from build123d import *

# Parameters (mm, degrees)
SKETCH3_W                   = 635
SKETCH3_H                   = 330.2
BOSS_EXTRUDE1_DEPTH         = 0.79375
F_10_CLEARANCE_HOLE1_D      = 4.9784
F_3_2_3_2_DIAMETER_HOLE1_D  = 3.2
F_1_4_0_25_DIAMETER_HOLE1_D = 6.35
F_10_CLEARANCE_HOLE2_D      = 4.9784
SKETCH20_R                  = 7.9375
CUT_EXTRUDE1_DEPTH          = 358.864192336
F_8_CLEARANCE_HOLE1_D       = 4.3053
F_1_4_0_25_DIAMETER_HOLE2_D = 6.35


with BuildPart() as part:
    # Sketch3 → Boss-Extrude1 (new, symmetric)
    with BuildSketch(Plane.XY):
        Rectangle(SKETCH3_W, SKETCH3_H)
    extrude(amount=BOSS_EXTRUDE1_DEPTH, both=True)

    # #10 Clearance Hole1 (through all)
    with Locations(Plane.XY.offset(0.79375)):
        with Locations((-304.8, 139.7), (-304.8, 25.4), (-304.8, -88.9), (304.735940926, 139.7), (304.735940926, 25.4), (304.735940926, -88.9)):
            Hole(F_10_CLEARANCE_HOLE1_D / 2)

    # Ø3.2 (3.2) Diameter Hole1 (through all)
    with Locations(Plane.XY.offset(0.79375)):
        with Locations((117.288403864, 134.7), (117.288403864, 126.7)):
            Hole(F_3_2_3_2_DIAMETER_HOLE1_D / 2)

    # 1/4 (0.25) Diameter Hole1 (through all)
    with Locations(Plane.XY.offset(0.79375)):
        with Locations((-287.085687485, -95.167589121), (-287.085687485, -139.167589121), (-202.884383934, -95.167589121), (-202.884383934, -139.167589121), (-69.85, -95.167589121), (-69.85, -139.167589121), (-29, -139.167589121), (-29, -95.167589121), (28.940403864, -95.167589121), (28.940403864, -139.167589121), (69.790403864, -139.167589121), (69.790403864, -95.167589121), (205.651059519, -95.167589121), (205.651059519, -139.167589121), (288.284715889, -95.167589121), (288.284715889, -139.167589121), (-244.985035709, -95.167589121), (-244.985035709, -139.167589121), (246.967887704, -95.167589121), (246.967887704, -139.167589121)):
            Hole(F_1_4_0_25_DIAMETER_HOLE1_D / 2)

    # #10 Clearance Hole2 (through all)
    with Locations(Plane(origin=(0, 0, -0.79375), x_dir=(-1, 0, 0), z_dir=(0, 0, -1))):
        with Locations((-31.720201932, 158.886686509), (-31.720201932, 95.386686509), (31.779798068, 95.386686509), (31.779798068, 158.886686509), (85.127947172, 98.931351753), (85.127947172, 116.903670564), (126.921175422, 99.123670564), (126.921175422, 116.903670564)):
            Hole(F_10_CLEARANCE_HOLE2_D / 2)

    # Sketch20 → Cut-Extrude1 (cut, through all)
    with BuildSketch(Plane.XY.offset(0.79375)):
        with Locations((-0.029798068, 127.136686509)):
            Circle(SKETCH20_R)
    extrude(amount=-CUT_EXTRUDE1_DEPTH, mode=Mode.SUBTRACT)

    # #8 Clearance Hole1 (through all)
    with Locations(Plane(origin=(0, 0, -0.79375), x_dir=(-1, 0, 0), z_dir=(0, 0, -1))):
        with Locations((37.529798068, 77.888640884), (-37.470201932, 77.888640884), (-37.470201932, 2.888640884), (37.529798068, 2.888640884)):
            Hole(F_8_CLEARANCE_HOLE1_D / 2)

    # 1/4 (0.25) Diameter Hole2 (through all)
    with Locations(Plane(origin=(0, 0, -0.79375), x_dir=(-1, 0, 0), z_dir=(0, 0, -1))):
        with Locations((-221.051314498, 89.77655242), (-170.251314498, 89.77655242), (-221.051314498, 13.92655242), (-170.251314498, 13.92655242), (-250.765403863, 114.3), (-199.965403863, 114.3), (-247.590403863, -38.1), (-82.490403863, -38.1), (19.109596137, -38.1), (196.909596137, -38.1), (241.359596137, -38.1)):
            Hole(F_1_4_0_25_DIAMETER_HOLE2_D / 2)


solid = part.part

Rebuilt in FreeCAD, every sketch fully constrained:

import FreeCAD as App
import Part
import Sketcher

V = App.Vector
Q = App.Units.Quantity

doc = App.newDocument("Part")
body = doc.addObject("PartDesign::Body", "Body")

# Sketch on XY plane
sketch1 = doc.addObject("Sketcher::SketchObject", "Sketch")
body.addObject(sketch1)
sketch1.AttachmentSupport = (doc.XY_Plane, [""])
sketch1.MapMode = "FlatFace"
sketch1.addGeometry([
    Part.LineSegment(V(-318, 165, 0), V(-318, -165, 0)),
    Part.LineSegment(V(-318, -165, 0), V(318, -165, 0)),
    Part.LineSegment(V(318, -165, 0), V(318, 165, 0)),
    Part.LineSegment(V(318, 165, 0), V(-318, 165, 0)),
], False)
sketch1.addConstraint([
    Sketcher.Constraint("Coincident", 0, 2, 1, 1),
    Sketcher.Constraint("Coincident", 1, 2, 2, 1),
    Sketcher.Constraint("Coincident", 2, 2, 3, 1),
    Sketcher.Constraint("Coincident", 3, 2, 0, 1),
    Sketcher.Constraint("Vertical", 0),
    Sketcher.Constraint("Horizontal", 1),
    Sketcher.Constraint("Vertical", 2),
    Sketcher.Constraint("Horizontal", 3),
    Sketcher.Constraint("Symmetric", 0, 2, 2, 2, -1, 1),
    Sketcher.Constraint("DistanceX", 1, 1, 1, 2, Q("25 in")),
    Sketcher.Constraint("DistanceY", 0, 2, 0, 1, Q("13 in")),
])
pad1 = doc.addObject("PartDesign::Pad", "Pad")
body.addObject(pad1)
pad1.Profile = sketch1
pad1.Length = Q("0.0625 in")
pad1.Midplane = True

# Sketch on XY plane
sketch2 = doc.addObject("Sketcher::SketchObject", "Sketch001")
body.addObject(sketch2)
sketch2.AttachmentSupport = (doc.XY_Plane, [""])
sketch2.MapMode = "FlatFace"
sketch2.AttachmentOffset = App.Placement(V(0, 0, 0.03125 * 25.4), App.Rotation())
sketch2.addGeometry([
    Part.Circle(V(-304.8, 139.7, 0), V(0, 0, 1), 2.5),  # 0
    Part.Circle(V(-304.8, 25.4, 0), V(0, 0, 1), 2.5),  # 1
    Part.Circle(V(-304.8, -88.9, 0), V(0, 0, 1), 2.5),  # 2
    Part.Circle(V(304.7, 139.7, 0), V(0, 0, 1), 2.5),  # 3
    Part.Circle(V(304.7, 25.4, 0), V(0, 0, 1), 2.5),  # 4
    Part.Circle(V(304.7, -88.9, 0), V(0, 0, 1), 2.5),  # 5
], False)
sketch2.addConstraint([
    Sketcher.Constraint("Equal", 0, 1),
    Sketcher.Constraint("Equal", 1, 2),
    Sketcher.Constraint("Equal", 2, 3),
    Sketcher.Constraint("Equal", 3, 4),
    Sketcher.Constraint("Equal", 4, 5),
    Sketcher.Constraint("Horizontal", 0, 3, 3, 3),
    Sketcher.Constraint("Horizontal", 1, 3, 4, 3),
    Sketcher.Constraint("Horizontal", 2, 3, 5, 3),
    Sketcher.Constraint("Vertical", 0, 3, 1, 3),
    Sketcher.Constraint("Vertical", 1, 3, 2, 3),
    Sketcher.Constraint("Vertical", 3, 3, 4, 3),
    Sketcher.Constraint("Vertical", 4, 3, 5, 3),
    Sketcher.Constraint("Diameter", 0, Q("0.196 in")),
    Sketcher.Constraint("DistanceX", 0, 3, -1, 1, Q("12 in")),
    Sketcher.Constraint("DistanceY", -1, 1, 1, 3, Q("1 in")),
    Sketcher.Constraint("DistanceY", 2, 3, 0, 3, Q("9 in")),
    Sketcher.Constraint("DistanceY", -1, 1, 0, 3, Q("5.5 in")),
    Sketcher.Constraint("DistanceX", -1, 1, 3, 3, Q("304.735941 mm")),
])
doc.recompute()
hole = doc.addObject("PartDesign::Hole", "Hole")
body.addObject(hole)
hole.Profile = sketch2
hole.ThreadType = "None"
hole.Diameter = Q("0.196 in")
hole.DepthType = "ThroughAll"

# Sketch on XY plane
sketch3 = doc.addObject("Sketcher::SketchObject", "Sketch002")
body.addObject(sketch3)
sketch3.AttachmentSupport = (doc.XY_Plane, [""])
sketch3.MapMode = "FlatFace"
sketch3.AttachmentOffset = App.Placement(V(0, 0, 0.03125 * 25.4), App.Rotation())
sketch3.addGeometry([
    Part.Circle(V(117.3, 134.7, 0), V(0, 0, 1), 1.6),
    Part.Circle(V(117.3, 126.7, 0), V(0, 0, 1), 1.6),
], False)
sketch3.addConstraint([
    Sketcher.Constraint("Equal", 0, 1),
    Sketcher.Constraint("Vertical", 0, 3, 1, 3),
    Sketcher.Constraint("Diameter", 0, Q("3.2 mm")),
    Sketcher.Constraint("DistanceY", -1, 1, 0, 3, Q("134.7 mm")),
    Sketcher.Constraint("DistanceY", -1, 1, 1, 3, Q("126.7 mm")),
    Sketcher.Constraint("DistanceX", -1, 1, 0, 3, Q("117.288404 mm")),
])
doc.recompute()
hole2 = doc.addObject("PartDesign::Hole", "Hole001")
body.addObject(hole2)
hole2.Profile = sketch3
hole2.ThreadType = "None"
hole2.Diameter = 3.2
hole2.DepthType = "ThroughAll"

# Sketch on XY plane
sketch4 = doc.addObject("Sketcher::SketchObject", "Sketch003")
body.addObject(sketch4)
sketch4.AttachmentSupport = (doc.XY_Plane, [""])
sketch4.MapMode = "FlatFace"
sketch4.AttachmentOffset = App.Placement(V(0, 0, 0.03125 * 25.4), App.Rotation())
sketch4.addGeometry([
    Part.Circle(V(-287.1, -95.2, 0), V(0, 0, 1), 3.2),  # 0
    Part.Circle(V(-287.1, -139.2, 0), V(0, 0, 1), 3.2),  # 1
    Part.Circle(V(-202.9, -95.2, 0), V(0, 0, 1), 3.2),  # 2
    Part.Circle(V(-202.9, -139.2, 0), V(0, 0, 1), 3.2),  # 3
    Part.Circle(V(-69.8, -95.2, 0), V(0, 0, 1), 3.2),  # 4
    Part.Circle(V(-69.8, -139.2, 0), V(0, 0, 1), 3.2),  # 5
    Part.Circle(V(-29, -139.2, 0), V(0, 0, 1), 3.2),  # 6
    Part.Circle(V(-29, -95.2, 0), V(0, 0, 1), 3.2),  # 7
    Part.Circle(V(28.9, -95.2, 0), V(0, 0, 1), 3.2),  # 8
    Part.Circle(V(28.9, -139.2, 0), V(0, 0, 1), 3.2),  # 9
    Part.Circle(V(69.8, -139.2, 0), V(0, 0, 1), 3.2),  # 10
    Part.Circle(V(69.8, -95.2, 0), V(0, 0, 1), 3.2),  # 11
    Part.Circle(V(205.7, -95.2, 0), V(0, 0, 1), 3.2),  # 12
    Part.Circle(V(205.7, -139.2, 0), V(0, 0, 1), 3.2),  # 13
    Part.Circle(V(288.3, -95.2, 0), V(0, 0, 1), 3.2),  # 14
    Part.Circle(V(288.3, -139.2, 0), V(0, 0, 1), 3.2),  # 15
    Part.Circle(V(-245, -95.2, 0), V(0, 0, 1), 3.2),  # 16
    Part.Circle(V(-245, -139.2, 0), V(0, 0, 1), 3.2),  # 17
    Part.Circle(V(247, -95.2, 0), V(0, 0, 1), 3.2),  # 18
    Part.Circle(V(247, -139.2, 0), V(0, 0, 1), 3.2),  # 19
], False)
sketch4.addConstraint([
    Sketcher.Constraint("Equal", 0, 1),
    Sketcher.Constraint("Equal", 1, 2),
    Sketcher.Constraint("Equal", 2, 3),
    Sketcher.Constraint("Equal", 3, 4),
    Sketcher.Constraint("Equal", 4, 5),
    Sketcher.Constraint("Equal", 5, 6),
    Sketcher.Constraint("Equal", 6, 7),
    Sketcher.Constraint("Equal", 7, 8),
    Sketcher.Constraint("Equal", 8, 9),
    Sketcher.Constraint("Equal", 9, 10),
    Sketcher.Constraint("Equal", 10, 11),
    Sketcher.Constraint("Equal", 11, 12),
    Sketcher.Constraint("Equal", 12, 13),
    Sketcher.Constraint("Equal", 13, 14),
    Sketcher.Constraint("Equal", 14, 15),
    Sketcher.Constraint("Equal", 15, 16),
    Sketcher.Constraint("Equal", 16, 17),
    Sketcher.Constraint("Equal", 17, 18),
    Sketcher.Constraint("Equal", 18, 19),
    Sketcher.Constraint("Horizontal", 0, 3, 2, 3),
    Sketcher.Constraint("Horizontal", 1, 3, 3, 3),
    Sketcher.Constraint("Horizontal", 2, 3, 4, 3),
    Sketcher.Constraint("Horizontal", 3, 3, 5, 3),
    Sketcher.Constraint("Horizontal", 5, 3, 6, 3),
    Sketcher.Constraint("Horizontal", 4, 3, 7, 3),
    Sketcher.Constraint("Horizontal", 7, 3, 8, 3),
    Sketcher.Constraint("Horizontal", 6, 3, 9, 3),
    Sketcher.Constraint("Horizontal", 9, 3, 10, 3),
    Sketcher.Constraint("Horizontal", 8, 3, 11, 3),
    Sketcher.Constraint("Horizontal", 11, 3, 12, 3),
    Sketcher.Constraint("Horizontal", 10, 3, 13, 3),
    Sketcher.Constraint("Horizontal", 12, 3, 14, 3),
    Sketcher.Constraint("Horizontal", 13, 3, 15, 3),
    Sketcher.Constraint("Horizontal", 14, 3, 16, 3),
    Sketcher.Constraint("Horizontal", 15, 3, 17, 3),
    Sketcher.Constraint("Horizontal", 16, 3, 18, 3),
    Sketcher.Constraint("Horizontal", 17, 3, 19, 3),
    Sketcher.Constraint("Vertical", 0, 3, 1, 3),
    Sketcher.Constraint("Vertical", 2, 3, 3, 3),
    Sketcher.Constraint("Vertical", 4, 3, 5, 3),
    Sketcher.Constraint("Vertical", 6, 3, 7, 3),
    Sketcher.Constraint("Vertical", 8, 3, 9, 3),
    Sketcher.Constraint("Vertical", 10, 3, 11, 3),
    Sketcher.Constraint("Vertical", 12, 3, 13, 3),
    Sketcher.Constraint("Vertical", 14, 3, 15, 3),
    Sketcher.Constraint("Vertical", 16, 3, 17, 3),
    Sketcher.Constraint("Vertical", 18, 3, 19, 3),
    Sketcher.Constraint("Diameter", 0, Q("0.25 in")),
    Sketcher.Constraint("DistanceX", 4, 3, -1, 1, Q("2.75 in")),
    Sketcher.Constraint("DistanceX", 6, 3, -1, 1, Q("29 mm")),
    Sketcher.Constraint("DistanceY", 1, 3, 0, 3, Q("44 mm")),
    Sketcher.Constraint("DistanceX", 9, 3, 10, 3, Q("40.85 mm")),
    Sketcher.Constraint("DistanceY", 0, 3, -1, 1, Q("95.167589 mm")),
    Sketcher.Constraint("DistanceX", -1, 1, 12, 3, Q("205.65106 mm")),
    Sketcher.Constraint("DistanceX", 16, 3, 2, 3, Q("42.100652 mm")),
    Sketcher.Constraint("DistanceX", 0, 3, 16, 3, Q("42.100652 mm")),
    Sketcher.Constraint("DistanceX", 12, 3, 18, 3, Q("41.316828 mm")),
    Sketcher.Constraint("DistanceX", 18, 3, 14, 3, Q("41.316828 mm")),
    Sketcher.Constraint("DistanceX", 0, 3, -1, 1, Q("287.085687 mm")),
    Sketcher.Constraint("DistanceX", -1, 1, 8, 3, Q("28.940404 mm")),
])
doc.recompute()
hole3 = doc.addObject("PartDesign::Hole", "Hole002")
body.addObject(hole3)
hole3.Profile = sketch4
hole3.ThreadType = "None"
hole3.Diameter = Q("0.25 in")
hole3.DepthType = "ThroughAll"

# Sketch on XY plane
sketch5 = doc.addObject("Sketcher::SketchObject", "Sketch004")
body.addObject(sketch5)
sketch5.AttachmentSupport = (doc.XY_Plane, [""])
sketch5.MapMode = "FlatFace"
sketch5.AttachmentOffset = App.Placement(V(0, 0, -0.03125 * 25.4), App.Rotation())
sketch5.addGeometry([
    Part.Circle(V(31.7, 158.9, 0), V(0, 0, 1), 2.5),  # 0
    Part.Circle(V(31.7, 95.4, 0), V(0, 0, 1), 2.5),  # 1
    Part.Circle(V(-31.8, 95.4, 0), V(0, 0, 1), 2.5),  # 2
    Part.Circle(V(-31.8, 158.9, 0), V(0, 0, 1), 2.5),  # 3
    Part.Circle(V(-85.1, 98.9, 0), V(0, 0, 1), 2.5),  # 4
    Part.Circle(V(-85.1, 116.9, 0), V(0, 0, 1), 2.5),  # 5
    Part.Circle(V(-126.9, 99.1, 0), V(0, 0, 1), 2.5),  # 6
    Part.Circle(V(-126.9, 116.9, 0), V(0, 0, 1), 2.5),  # 7
], False)
sketch5.addConstraint([
    Sketcher.Constraint("Equal", 0, 1),
    Sketcher.Constraint("Equal", 1, 2),
    Sketcher.Constraint("Equal", 2, 3),
    Sketcher.Constraint("Equal", 3, 4),
    Sketcher.Constraint("Equal", 4, 5),
    Sketcher.Constraint("Equal", 5, 6),
    Sketcher.Constraint("Equal", 6, 7),
    Sketcher.Constraint("Horizontal", 1, 3, 2, 3),
    Sketcher.Constraint("Horizontal", 0, 3, 3, 3),
    Sketcher.Constraint("Horizontal", 5, 3, 7, 3),
    Sketcher.Constraint("Vertical", 0, 3, 1, 3),
    Sketcher.Constraint("Vertical", 2, 3, 3, 3),
    Sketcher.Constraint("Vertical", 4, 3, 5, 3),
    Sketcher.Constraint("Vertical", 6, 3, 7, 3),
    Sketcher.Constraint("Diameter", 0, Q("0.196 in")),
    Sketcher.Constraint("DistanceY", 1, 3, 0, 3, Q("2.5 in")),
    Sketcher.Constraint("DistanceX", 2, 3, 1, 3, Q("2.5 in")),
    Sketcher.Constraint("DistanceY", 6, 3, 5, 3, Q("0.7 in")),
    Sketcher.Constraint("DistanceX", -1, 1, 0, 3, Q("31.720202 mm")),
    Sketcher.Constraint("DistanceY", -1, 1, 4, 3, Q("98.931352 mm")),
    Sketcher.Constraint("DistanceY", -1, 1, 5, 3, Q("116.903671 mm")),
    Sketcher.Constraint("DistanceX", 4, 3, 2, 3, Q("53.348149 mm")),
    Sketcher.Constraint("DistanceX", 6, 3, 4, 3, Q("41.793228 mm")),
    Sketcher.Constraint("DistanceY", -1, 1, 0, 3, Q("158.886687 mm")),
])
doc.recompute()
hole4 = doc.addObject("PartDesign::Hole", "Hole003")
body.addObject(hole4)
hole4.Profile = sketch5
hole4.ThreadType = "None"
hole4.Diameter = Q("0.196 in")
hole4.DepthType = "ThroughAll"
hole4.Reversed = True

# Sketch on XY plane
sketch6 = doc.addObject("Sketcher::SketchObject", "Sketch005")
body.addObject(sketch6)
sketch6.AttachmentSupport = (doc.XY_Plane, [""])
sketch6.MapMode = "FlatFace"
sketch6.AttachmentOffset = App.Placement(V(0, 0, 0.03125 * 25.4), App.Rotation())
sketch6.addGeometry(Part.Circle(V(0, 127, 0), V(0, 0, 1), 8), False)
sketch6.addConstraint([
    Sketcher.Constraint("Diameter", 0, Q("0.625 in")),
    Sketcher.Constraint("DistanceX", 0, 3, -1, 1, Q("0.029798 mm")),
    Sketcher.Constraint("DistanceY", -1, 1, 0, 3, Q("127.136687 mm")),
])
pocket1 = doc.addObject("PartDesign::Pocket", "Pocket")
body.addObject(pocket1)
pocket1.Profile = sketch6
pocket1.Type = "ThroughAll"

# Sketch on XY plane
sketch7 = doc.addObject("Sketcher::SketchObject", "Sketch006")
body.addObject(sketch7)
sketch7.AttachmentSupport = (doc.XY_Plane, [""])
sketch7.MapMode = "FlatFace"
sketch7.AttachmentOffset = App.Placement(V(0, 0, -0.03125 * 25.4), App.Rotation())
sketch7.addGeometry([
    Part.Circle(V(-37.5, 77.9, 0), V(0, 0, 1), 2.2),
    Part.Circle(V(37.5, 77.9, 0), V(0, 0, 1), 2.2),
    Part.Circle(V(37.5, 2.9, 0), V(0, 0, 1), 2.2),
    Part.Circle(V(-37.5, 2.9, 0), V(0, 0, 1), 2.2),
], False)
sketch7.addConstraint([
    Sketcher.Constraint("Equal", 0, 1),
    Sketcher.Constraint("Equal", 1, 2),
    Sketcher.Constraint("Equal", 2, 3),
    Sketcher.Constraint("Horizontal", 0, 3, 1, 3),
    Sketcher.Constraint("Horizontal", 2, 3, 3, 3),
    Sketcher.Constraint("Vertical", 1, 3, 2, 3),
    Sketcher.Constraint("Vertical", 0, 3, 3, 3),
    Sketcher.Constraint("Diameter", 0, Q("0.1695 in")),
    Sketcher.Constraint("DistanceX", 0, 3, -1, 1, Q("37.529798 mm")),
    Sketcher.Constraint("DistanceX", -1, 1, 1, 3, Q("37.470202 mm")),
    Sketcher.Constraint("DistanceY", 2, 3, 1, 3, Q("75 mm")),
    Sketcher.Constraint("DistanceY", -1, 1, 0, 3, Q("77.888641 mm")),
])
doc.recompute()
hole5 = doc.addObject("PartDesign::Hole", "Hole004")
body.addObject(hole5)
hole5.Profile = sketch7
hole5.ThreadType = "None"
hole5.Diameter = Q("0.1695 in")
hole5.DepthType = "ThroughAll"
hole5.Reversed = True

# Sketch on XY plane
sketch8 = doc.addObject("Sketcher::SketchObject", "Sketch007")
body.addObject(sketch8)
sketch8.AttachmentSupport = (doc.XY_Plane, [""])
sketch8.MapMode = "FlatFace"
sketch8.AttachmentOffset = App.Placement(V(0, 0, -0.03125 * 25.4), App.Rotation())
sketch8.addGeometry([
    Part.Circle(V(221.1, 89.8, 0), V(0, 0, 1), 3.2),  # 0
    Part.Circle(V(170.3, 89.8, 0), V(0, 0, 1), 3.2),  # 1
    Part.Circle(V(221.1, 13.9, 0), V(0, 0, 1), 3.2),  # 2
    Part.Circle(V(170.3, 13.9, 0), V(0, 0, 1), 3.2),  # 3
    Part.Circle(V(250.8, 114.3, 0), V(0, 0, 1), 3.2),  # 4
    Part.Circle(V(200, 114.3, 0), V(0, 0, 1), 3.2),  # 5
    Part.Circle(V(247.6, -38.1, 0), V(0, 0, 1), 3.2),  # 6
    Part.Circle(V(82.5, -38.1, 0), V(0, 0, 1), 3.2),  # 7
    Part.Circle(V(-19.1, -38.1, 0), V(0, 0, 1), 3.2),  # 8
    Part.Circle(V(-196.9, -38.1, 0), V(0, 0, 1), 3.2),  # 9
    Part.Circle(V(-241.4, -38.1, 0), V(0, 0, 1), 3.2),  # 10
], False)
sketch8.addConstraint([
    Sketcher.Constraint("Equal", 0, 1),
    Sketcher.Constraint("Equal", 1, 2),
    Sketcher.Constraint("Equal", 2, 3),
    Sketcher.Constraint("Equal", 3, 4),
    Sketcher.Constraint("Equal", 4, 5),
    Sketcher.Constraint("Equal", 5, 6),
    Sketcher.Constraint("Equal", 6, 7),
    Sketcher.Constraint("Equal", 7, 8),
    Sketcher.Constraint("Equal", 8, 9),
    Sketcher.Constraint("Equal", 9, 10),
    Sketcher.Constraint("Horizontal", 0, 3, 1, 3),
    Sketcher.Constraint("Horizontal", 2, 3, 3, 3),
    Sketcher.Constraint("Horizontal", 4, 3, 5, 3),
    Sketcher.Constraint("Horizontal", 6, 3, 7, 3),
    Sketcher.Constraint("Horizontal", 7, 3, 8, 3),
    Sketcher.Constraint("Horizontal", 8, 3, 9, 3),
    Sketcher.Constraint("Horizontal", 9, 3, 10, 3),
    Sketcher.Constraint("Vertical", 0, 3, 2, 3),
    Sketcher.Constraint("Vertical", 1, 3, 3, 3),
    Sketcher.Constraint("Diameter", 0, Q("0.25 in")),
    Sketcher.Constraint("DistanceX", 1, 3, 0, 3, Q("2 in")),
    Sketcher.Constraint("DistanceX", 5, 3, 4, 3, Q("2 in")),
    Sketcher.Constraint("DistanceY", 6, 3, 4, 3, Q("6 in")),
    Sketcher.Constraint("DistanceX", 8, 3, 7, 3, Q("4 in")),
    Sketcher.Constraint("DistanceX", 9, 3, 8, 3, Q("7 in")),
    Sketcher.Constraint("DistanceY", -1, 1, 4, 3, Q("4.5 in")),
    Sketcher.Constraint("DistanceX", 7, 3, 6, 3, Q("6.5 in")),
    Sketcher.Constraint("DistanceX", 10, 3, 9, 3, Q("1.75 in")),
    Sketcher.Constraint("DistanceX", 6, 3, 4, 3, Q("0.125 in")),
    Sketcher.Constraint("DistanceY", 2, 3, 0, 3, Q("75.85 mm")),
    Sketcher.Constraint("DistanceX", 0, 3, 4, 3, Q("29.714089 mm")),
    Sketcher.Constraint("DistanceX", -1, 1, 0, 3, Q("221.051314 mm")),
    Sketcher.Constraint("DistanceY", -1, 1, 0, 3, Q("89.776552 mm")),
])
doc.recompute()
hole6 = doc.addObject("PartDesign::Hole", "Hole005")
body.addObject(hole6)
hole6.Profile = sketch8
hole6.ThreadType = "None"
hole6.Diameter = Q("0.25 in")
hole6.DepthType = "ThroughAll"
hole6.Reversed = True

doc.recompute()
